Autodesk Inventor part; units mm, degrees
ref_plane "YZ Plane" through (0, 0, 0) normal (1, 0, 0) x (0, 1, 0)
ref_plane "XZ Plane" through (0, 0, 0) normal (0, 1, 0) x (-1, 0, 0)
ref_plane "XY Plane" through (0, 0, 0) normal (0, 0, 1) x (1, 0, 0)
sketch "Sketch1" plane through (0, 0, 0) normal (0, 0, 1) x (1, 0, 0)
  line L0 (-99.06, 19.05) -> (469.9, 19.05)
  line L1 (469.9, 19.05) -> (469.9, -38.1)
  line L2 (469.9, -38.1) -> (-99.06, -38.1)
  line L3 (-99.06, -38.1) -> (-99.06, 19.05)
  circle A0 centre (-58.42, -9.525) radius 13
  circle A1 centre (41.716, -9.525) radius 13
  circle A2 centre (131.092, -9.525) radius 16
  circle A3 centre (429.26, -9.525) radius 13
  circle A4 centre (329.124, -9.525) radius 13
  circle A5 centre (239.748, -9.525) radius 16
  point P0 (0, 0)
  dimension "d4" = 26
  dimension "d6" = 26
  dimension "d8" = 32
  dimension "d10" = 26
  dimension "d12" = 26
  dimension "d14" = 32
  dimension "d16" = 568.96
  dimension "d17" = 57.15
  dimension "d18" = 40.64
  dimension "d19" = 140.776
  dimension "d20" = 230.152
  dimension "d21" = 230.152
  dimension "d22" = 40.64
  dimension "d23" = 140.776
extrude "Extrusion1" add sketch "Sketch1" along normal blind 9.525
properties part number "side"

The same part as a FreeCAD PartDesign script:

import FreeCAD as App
import Part
import Sketcher
Q = App.Units.Quantity


def add_polygon(sketch, points):
    """Adds a closed chain of lines whose ends are joined by coincident constraints."""
    first, n = sketch.GeometryCount, len(points)
    for a, b in zip(points, points[1:] + points[:1]):
        sketch.addGeometry(Part.LineSegment(App.Vector(*a, 0), App.Vector(*b, 0)), False)
    for i in range(n):
        sketch.addConstraint(Sketcher.Constraint("Coincident", first + i, 2, first + (i + 1) % n, 1))

doc = App.newDocument("Part")
body = doc.addObject("PartDesign::Body", "Body")

sketch1 = body.newObject("Sketcher::SketchObject", "Sketch")
sketch1.AttachmentSupport = (doc.getObject("XY_Plane"), [""])
sketch1.MapMode = "FlatFace"
add_polygon(sketch1, [(470, 19), (-99, 19), (-99, -38), (470, -38)])
sketch1.addGeometry(Part.Circle(App.Vector(-58, -10, 0), App.Vector(0, 0, 1), 13), False)
sketch1.addGeometry(Part.Circle(App.Vector(42, -10, 0), App.Vector(0, 0, 1), 13), False)
sketch1.addGeometry(Part.Circle(App.Vector(131, -10, 0), App.Vector(0, 0, 1), 16), False)
sketch1.addGeometry(Part.Circle(App.Vector(240, -10, 0), App.Vector(0, 0, 1), 16), False)
sketch1.addGeometry(Part.Circle(App.Vector(329, -10, 0), App.Vector(0, 0, 1), 13), False)
sketch1.addGeometry(Part.Circle(App.Vector(429, -10, 0), App.Vector(0, 0, 1), 13), False)
sketch1.addConstraint(Sketcher.Constraint("Horizontal", 0))
sketch1.addConstraint(Sketcher.Constraint("Vertical", 1))
sketch1.addConstraint(Sketcher.Constraint("Horizontal", 2))
sketch1.addConstraint(Sketcher.Constraint("Vertical", 3))
sketch1.addConstraint(Sketcher.Constraint("Equal", 4, 5))
sketch1.addConstraint(Sketcher.Constraint("Equal", 6, 7))
sketch1.addConstraint(Sketcher.Constraint("Equal", 5, 8))
sketch1.addConstraint(Sketcher.Constraint("Equal", 8, 9))
sketch1.addConstraint(Sketcher.Constraint("Horizontal", 4, 3, 5, 3))
sketch1.addConstraint(Sketcher.Constraint("Horizontal", 5, 3, 6, 3))
sketch1.addConstraint(Sketcher.Constraint("Horizontal", 6, 3, 7, 3))
sketch1.addConstraint(Sketcher.Constraint("Horizontal", 7, 3, 8, 3))
sketch1.addConstraint(Sketcher.Constraint("Horizontal", 8, 3, 9, 3))
sketch1.addConstraint(Sketcher.Constraint("DistanceX", 0, 2, 0, 1, Q("22.4 in")))
sketch1.addConstraint(Sketcher.Constraint("DistanceY", 1, 2, 1, 1, Q("2.25 in")))
sketch1.addConstraint(Sketcher.Constraint("DistanceX", 0, 2, 4, 3, Q("1.6 in")))
sketch1.addConstraint(Sketcher.Constraint("DistanceX", 9, 3, 2, 2, Q("1.6 in")))
sketch1.addConstraint(Sketcher.Constraint("Diameter", 4, 26.0))
sketch1.addConstraint(Sketcher.Constraint("Diameter", 6, 32.0))
sketch1.addConstraint(Sketcher.Constraint("DistanceX", 4, 3, -1, 1, Q("2.3 in")))
sketch1.addConstraint(Sketcher.Constraint("DistanceY", 1, 2, -1, 1, Q("1.5 in")))
sketch1.addConstraint(Sketcher.Constraint("DistanceX", 0, 2, 6, 3, Q("9.0611 in")))
sketch1.addConstraint(Sketcher.Constraint("DistanceX", 7, 3, 2, 2, Q("9.0611 in")))
sketch1.addConstraint(Sketcher.Constraint("DistanceX", 0, 2, 5, 3, 140.776))
sketch1.addConstraint(Sketcher.Constraint("DistanceX", 8, 3, 2, 2, 140.776))
sketch1.addConstraint(Sketcher.Constraint("DistanceY", 4, 3, -1, 1, Q("0.375 in")))
pad1 = body.newObject("PartDesign::Pad", "Pad")
pad1.Profile = sketch1
pad1.Length = Q("0.375 in")

doc.recompute()
